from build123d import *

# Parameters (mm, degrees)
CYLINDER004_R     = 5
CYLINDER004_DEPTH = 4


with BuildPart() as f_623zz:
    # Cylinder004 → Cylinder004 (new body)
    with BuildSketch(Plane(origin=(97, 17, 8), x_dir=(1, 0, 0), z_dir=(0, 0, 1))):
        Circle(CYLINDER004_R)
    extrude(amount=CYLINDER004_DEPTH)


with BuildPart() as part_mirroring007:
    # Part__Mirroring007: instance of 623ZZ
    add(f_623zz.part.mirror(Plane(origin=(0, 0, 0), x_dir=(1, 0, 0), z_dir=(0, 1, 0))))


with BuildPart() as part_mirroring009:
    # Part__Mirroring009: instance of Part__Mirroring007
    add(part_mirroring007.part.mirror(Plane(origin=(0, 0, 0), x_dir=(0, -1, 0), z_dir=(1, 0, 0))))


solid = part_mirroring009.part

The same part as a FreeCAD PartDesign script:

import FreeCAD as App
import Part
import Sketcher
Q = App.Units.Quantity

doc = App.newDocument("Part")
body = doc.addObject("PartDesign::Body", "Body")

# Sketch on XY plane
sketch1 = body.newObject("Sketcher::SketchObject", "Sketch")
sketch1.AttachmentSupport = (doc.getObject("XY_Plane"), [""])
sketch1.MapMode = "FlatFace"
sketch1.AttachmentOffset = App.Placement(App.Vector(0, 0, 8), App.Rotation())
sketch1.addGeometry(Part.Circle(App.Vector(97, 17, 0), App.Vector(0, 0, 1), 5), False)
sketch1.addConstraint([
    Sketcher.Constraint("Diameter", 0, Q("10 mm")),
    Sketcher.Constraint("DistanceX", -1, 1, 0, 3, Q("97 mm")),
    Sketcher.Constraint("DistanceY", -1, 1, 0, 3, Q("17 mm")),
])
pad1 = body.newObject("PartDesign::Pad", "Pad")
pad1.Profile = sketch1
pad1.Length = 4
body2 = doc.addObject("PartDesign::Body", "Body001")
doc.recompute()

mirroring = doc.addObject("Part::Mirroring", "Mirroring")
mirroring.Source = body
mirroring.Base = App.Vector(0, 0, 0)
mirroring.Normal = App.Vector(0, 1, 0)
body2.BaseFeature = mirroring
doc.recompute()
body3 = doc.addObject("PartDesign::Body", "Body002")
doc.recompute()

mirroring2 = doc.addObject("Part::Mirroring", "Mirroring001")
mirroring2.Source = body2
mirroring2.Base = App.Vector(0, 0, 0)
mirroring2.Normal = App.Vector(1, 0, 0)
body3.BaseFeature = mirroring2
doc.recompute()
body.Visibility = False
body2.Visibility = False
mirroring.Visibility = False
mirroring2.Visibility = False

doc.recompute()
